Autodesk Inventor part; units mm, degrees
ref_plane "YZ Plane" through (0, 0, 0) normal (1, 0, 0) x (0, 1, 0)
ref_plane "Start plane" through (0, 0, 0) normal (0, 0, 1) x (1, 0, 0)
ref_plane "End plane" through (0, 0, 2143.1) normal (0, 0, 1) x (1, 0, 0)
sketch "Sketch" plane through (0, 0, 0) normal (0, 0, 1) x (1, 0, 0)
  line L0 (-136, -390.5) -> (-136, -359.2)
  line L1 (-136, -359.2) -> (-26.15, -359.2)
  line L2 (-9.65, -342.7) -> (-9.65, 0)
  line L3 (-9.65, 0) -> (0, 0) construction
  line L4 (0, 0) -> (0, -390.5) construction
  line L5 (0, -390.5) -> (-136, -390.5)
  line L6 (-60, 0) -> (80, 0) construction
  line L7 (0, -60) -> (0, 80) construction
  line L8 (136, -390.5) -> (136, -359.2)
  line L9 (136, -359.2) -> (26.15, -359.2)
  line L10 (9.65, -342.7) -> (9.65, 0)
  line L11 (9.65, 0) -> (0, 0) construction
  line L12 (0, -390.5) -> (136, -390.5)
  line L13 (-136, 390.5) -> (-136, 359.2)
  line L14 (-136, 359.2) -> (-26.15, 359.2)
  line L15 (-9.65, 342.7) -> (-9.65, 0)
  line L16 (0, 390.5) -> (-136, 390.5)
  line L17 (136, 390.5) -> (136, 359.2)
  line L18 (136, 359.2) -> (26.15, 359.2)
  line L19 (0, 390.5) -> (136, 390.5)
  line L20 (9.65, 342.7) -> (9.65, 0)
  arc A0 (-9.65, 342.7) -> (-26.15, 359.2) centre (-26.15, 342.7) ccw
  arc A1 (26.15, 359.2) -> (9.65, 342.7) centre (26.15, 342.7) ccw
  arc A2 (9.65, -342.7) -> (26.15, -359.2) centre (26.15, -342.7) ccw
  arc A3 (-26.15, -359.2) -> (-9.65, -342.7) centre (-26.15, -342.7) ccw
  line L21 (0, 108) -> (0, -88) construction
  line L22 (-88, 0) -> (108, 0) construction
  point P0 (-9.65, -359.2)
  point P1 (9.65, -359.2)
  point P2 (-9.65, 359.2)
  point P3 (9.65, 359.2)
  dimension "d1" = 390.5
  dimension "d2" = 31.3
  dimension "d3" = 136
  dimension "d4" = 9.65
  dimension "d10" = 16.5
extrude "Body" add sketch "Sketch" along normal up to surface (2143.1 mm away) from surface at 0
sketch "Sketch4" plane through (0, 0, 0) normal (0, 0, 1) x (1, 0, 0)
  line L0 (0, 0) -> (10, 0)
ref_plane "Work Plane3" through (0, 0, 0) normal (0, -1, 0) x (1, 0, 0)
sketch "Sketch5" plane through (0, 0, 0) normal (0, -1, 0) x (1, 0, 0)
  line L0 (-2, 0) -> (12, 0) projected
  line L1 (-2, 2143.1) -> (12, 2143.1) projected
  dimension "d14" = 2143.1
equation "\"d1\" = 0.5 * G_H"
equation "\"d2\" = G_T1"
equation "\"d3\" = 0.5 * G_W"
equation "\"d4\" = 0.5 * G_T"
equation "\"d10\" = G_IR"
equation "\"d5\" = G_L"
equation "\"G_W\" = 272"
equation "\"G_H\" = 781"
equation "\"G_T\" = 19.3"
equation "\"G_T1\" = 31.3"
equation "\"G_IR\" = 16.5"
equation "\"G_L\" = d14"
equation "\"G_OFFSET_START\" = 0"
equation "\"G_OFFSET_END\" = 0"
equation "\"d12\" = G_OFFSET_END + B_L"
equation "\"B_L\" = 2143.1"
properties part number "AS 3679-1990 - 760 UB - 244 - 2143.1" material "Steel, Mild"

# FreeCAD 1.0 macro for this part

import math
import FreeCAD as App
import Part
import Sketcher

V = App.Vector

doc = App.newDocument("Part")
body = doc.addObject("PartDesign::Body", "Body")

# Sketch on XY plane
sketch1 = body.newObject("Sketcher::SketchObject", "Sketch")
sketch1.AttachmentSupport = (doc.getObject("XY_Plane"), [""])
sketch1.MapMode = "FlatFace"
sketch1.addGeometry([
    Part.LineSegment(V(-136, -359.2, 0), V(-136, -390.5, 0)),  # 0
    Part.LineSegment(V(-136, -390.5, 0), V(136, -390.5, 0)),  # 1
    Part.LineSegment(V(136, -390.5, 0), V(136, -359.2, 0)),  # 2
    Part.LineSegment(V(136, -359.2, 0), V(26.15, -359.2, 0)),  # 3
    Part.ArcOfCircle(Part.Circle(V(26.15, -342.7, 0), V(0, 0, 1), 16.5), math.radians(180), math.radians(270)),  # 4
    Part.LineSegment(V(9.65, -342.7, 0), V(9.65, 342.7, 0)),  # 5
    Part.ArcOfCircle(Part.Circle(V(26.15, 342.7, 0), V(0, 0, 1), 16.5), math.radians(90), math.radians(180)),  # 6
    Part.LineSegment(V(26.15, 359.2, 0), V(136, 359.2, 0)),  # 7
    Part.LineSegment(V(136, 359.2, 0), V(136, 390.5, 0)),  # 8
    Part.LineSegment(V(136, 390.5, 0), V(-136, 390.5, 0)),  # 9
    Part.LineSegment(V(-136, 390.5, 0), V(-136, 359.2, 0)),  # 10
    Part.LineSegment(V(-136, 359.2, 0), V(-26.15, 359.2, 0)),  # 11
    Part.ArcOfCircle(Part.Circle(V(-26.15, 342.7, 0), V(0, 0, 1), 16.5), math.radians(0), math.radians(90)),  # 12
    Part.LineSegment(V(-9.65, 342.7, 0), V(-9.65, -342.7, 0)),  # 13
    Part.ArcOfCircle(Part.Circle(V(-26.15, -342.7, 0), V(0, 0, 1), 16.5), math.radians(-90), math.radians(0)),  # 14
    Part.LineSegment(V(-26.15, -359.2, 0), V(-136, -359.2, 0)),  # 15
], False)
sketch1.addConstraint([
    Sketcher.Constraint("Coincident", 0, 2, 1, 1),
    Sketcher.Constraint("Coincident", 1, 2, 2, 1),
    Sketcher.Constraint("Coincident", 2, 2, 3, 1),
    Sketcher.Constraint("Tangent", 3, 2, 4, 2),
    Sketcher.Constraint("Tangent", 4, 1, 5, 1),
    Sketcher.Constraint("Tangent", 5, 2, 6, 2),
    Sketcher.Constraint("Tangent", 6, 1, 7, 1),
    Sketcher.Constraint("Coincident", 7, 2, 8, 1),
    Sketcher.Constraint("Coincident", 8, 2, 9, 1),
    Sketcher.Constraint("Coincident", 9, 2, 10, 1),
    Sketcher.Constraint("Coincident", 10, 2, 11, 1),
    Sketcher.Constraint("Tangent", 11, 2, 12, 2),
    Sketcher.Constraint("Tangent", 12, 1, 13, 1),
    Sketcher.Constraint("Tangent", 13, 2, 14, 2),
    Sketcher.Constraint("Tangent", 14, 1, 15, 1),
    Sketcher.Constraint("Coincident", 15, 2, 0, 1),
    Sketcher.Constraint("Vertical", 0),
    Sketcher.Constraint("Horizontal", 1),
    Sketcher.Constraint("Vertical", 2),
    Sketcher.Constraint("Horizontal", 3),
    Sketcher.Constraint("Vertical", 5),
    Sketcher.Constraint("Horizontal", 7),
    Sketcher.Constraint("Vertical", 8),
    Sketcher.Constraint("Horizontal", 9),
    Sketcher.Constraint("Vertical", 10),
    Sketcher.Constraint("Horizontal", 11),
    Sketcher.Constraint("Vertical", 13),
    Sketcher.Constraint("Horizontal", 15),
    Sketcher.Constraint("Equal", 4, 6),
    Sketcher.Constraint("Equal", 6, 12),
    Sketcher.Constraint("Equal", 12, 14),
    Sketcher.Constraint("Symmetric", 4, 3, 12, 3, -1, 1),
    Sketcher.Constraint("Symmetric", 0, 2, 8, 2, -1, 1),
    Sketcher.Constraint("Symmetric", 7, 2, 10, 2, -2),
    Sketcher.Constraint("Symmetric", 2, 2, 15, 2, -2),
    Sketcher.Constraint("Radius", 4, 16.5),
    Sketcher.Constraint("DistanceY", 0, 2, 0, 1, 31.3),
    Sketcher.Constraint("DistanceX", 0, 2, -1, 1, 136.0),
    Sketcher.Constraint("DistanceY", 0, 2, -1, 1, 390.5),
    Sketcher.Constraint("DistanceX", -1, 1, 4, 1, 9.65),
])
pad1 = body.newObject("PartDesign::Pad", "Pad")
pad1.Profile = sketch1
pad1.Length = 2143.1

doc.recompute()
